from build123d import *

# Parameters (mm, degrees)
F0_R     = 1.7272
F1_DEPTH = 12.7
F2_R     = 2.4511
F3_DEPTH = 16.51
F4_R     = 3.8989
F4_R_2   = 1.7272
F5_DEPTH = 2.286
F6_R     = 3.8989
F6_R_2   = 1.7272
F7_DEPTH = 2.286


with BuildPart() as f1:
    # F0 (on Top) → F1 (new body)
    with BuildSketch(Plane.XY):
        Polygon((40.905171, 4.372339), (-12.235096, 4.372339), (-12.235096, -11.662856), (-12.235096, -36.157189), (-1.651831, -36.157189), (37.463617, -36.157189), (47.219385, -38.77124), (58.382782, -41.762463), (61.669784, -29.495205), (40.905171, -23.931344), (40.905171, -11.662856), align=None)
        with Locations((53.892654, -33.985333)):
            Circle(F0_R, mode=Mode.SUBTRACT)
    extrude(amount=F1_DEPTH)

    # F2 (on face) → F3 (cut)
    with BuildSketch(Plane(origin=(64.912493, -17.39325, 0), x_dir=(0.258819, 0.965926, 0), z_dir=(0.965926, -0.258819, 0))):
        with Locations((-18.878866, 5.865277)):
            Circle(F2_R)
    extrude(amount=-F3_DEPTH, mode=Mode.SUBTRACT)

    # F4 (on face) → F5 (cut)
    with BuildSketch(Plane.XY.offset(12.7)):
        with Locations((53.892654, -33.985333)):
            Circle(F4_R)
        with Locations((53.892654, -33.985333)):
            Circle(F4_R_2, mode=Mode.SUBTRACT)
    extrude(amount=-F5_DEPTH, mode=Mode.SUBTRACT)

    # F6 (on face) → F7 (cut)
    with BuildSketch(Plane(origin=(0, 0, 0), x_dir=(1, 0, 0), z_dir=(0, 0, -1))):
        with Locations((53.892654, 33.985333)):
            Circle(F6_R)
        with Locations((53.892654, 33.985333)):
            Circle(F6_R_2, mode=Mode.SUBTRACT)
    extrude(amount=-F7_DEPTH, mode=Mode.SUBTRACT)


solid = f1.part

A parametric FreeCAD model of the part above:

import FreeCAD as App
import Part
import Sketcher

V = App.Vector
Q = App.Units.Quantity

doc = App.newDocument("Part")
body = doc.addObject("PartDesign::Body", "Body")

# Sketch on XY plane
sketch1 = body.newObject("Sketcher::SketchObject", "Sketch")
sketch1.AttachmentSupport = (doc.getObject("XY_Plane"), [""])
sketch1.MapMode = "FlatFace"
sketch1.addGeometry(Part.LineSegment(V(40.9, 4.4, 0), V(-12.2, 4.4, 0)), False)
sketch1.addGeometry(Part.LineSegment(V(-12.2, 4.4, 0), V(-12.2, -36.2, 0)), False)
sketch1.addGeometry(Part.LineSegment(V(-12.2, -36.2, 0), V(37.5, -36.2, 0)), False)
sketch1.addGeometry(Part.LineSegment(V(37.5, -36.2, 0), V(47.2, -38.8, 0)), False)
sketch1.addGeometry(Part.LineSegment(V(47.2, -38.8, 0), V(58.4, -41.8, 0)), False)
sketch1.addGeometry(Part.LineSegment(V(58.4, -41.8, 0), V(61.7, -29.5, 0)), False)
sketch1.addGeometry(Part.LineSegment(V(61.7, -29.5, 0), V(40.9, -23.9, 0)), False)
sketch1.addGeometry(Part.LineSegment(V(40.9, -23.9, 0), V(40.9, 4.4, 0)), False)
sketch1.addGeometry(Part.Circle(V(53.9, -34, 0), V(0, 0, 1), 1.7), False)
sketch1.addConstraint(Sketcher.Constraint("Coincident", 0, 2, 1, 1))
sketch1.addConstraint(Sketcher.Constraint("Coincident", 1, 2, 2, 1))
sketch1.addConstraint(Sketcher.Constraint("Coincident", 2, 2, 3, 1))
sketch1.addConstraint(Sketcher.Constraint("Coincident", 3, 2, 4, 1))
sketch1.addConstraint(Sketcher.Constraint("Coincident", 4, 2, 5, 1))
sketch1.addConstraint(Sketcher.Constraint("Coincident", 5, 2, 6, 1))
sketch1.addConstraint(Sketcher.Constraint("Coincident", 6, 2, 7, 1))
sketch1.addConstraint(Sketcher.Constraint("Coincident", 7, 2, 0, 1))
sketch1.addConstraint(Sketcher.Constraint("Horizontal", 0))
sketch1.addConstraint(Sketcher.Constraint("Vertical", 1))
sketch1.addConstraint(Sketcher.Constraint("Horizontal", 2))
sketch1.addConstraint(Sketcher.Constraint("Vertical", 7))
sketch1.addConstraint(Sketcher.Constraint("Parallel", 3, 4))
sketch1.addConstraint(Sketcher.Constraint("Perpendicular", 4, 5))
sketch1.addConstraint(Sketcher.Constraint("Perpendicular", 5, 6))
sketch1.addConstraint(Sketcher.Constraint("Diameter", 8, Q("0.136 in")))
sketch1.addConstraint(Sketcher.Constraint("Angle", 3, Q("-15.000005 deg")))
sketch1.addConstraint(Sketcher.Constraint("Distance", 5, Q("0.5 in")))
sketch1.addConstraint(Sketcher.Constraint("Distance", 4, 11.557199))
sketch1.addConstraint(Sketcher.Constraint("DistanceY", 4, 2, 0, 2, 46.134802))
sketch1.addConstraint(Sketcher.Constraint("Distance", 6, 21.497109))
sketch1.addConstraint(Sketcher.Constraint("DistanceX", 0, 2, 0, 1, 53.140267))
sketch1.addConstraint(Sketcher.Constraint("DistanceX", 2, 1, 2, 2, 49.698713))
sketch1.addConstraint(Sketcher.Constraint("DistanceY", -1, 1, 0, 2, 4.372339))
sketch1.addConstraint(Sketcher.Constraint("DistanceX", -1, 1, 6, 2, 40.905171))
sketch1.addConstraint(Sketcher.Constraint("DistanceX", 0, 2, 8, 3, 66.12775))
sketch1.addConstraint(Sketcher.Constraint("DistanceY", 8, 3, 0, 2, 38.357672))
pad1 = body.newObject("PartDesign::Pad", "Pad")
pad1.Profile = sketch1
pad1.Length = Q("0.5 in")

# Sketch on an angled plane
sketch2 = body.newObject("Sketcher::SketchObject", "Sketch001")
sketch2.Placement = App.Placement(V(64.912493, -17.39325, 0), App.Rotation(V(0.25881896, 0.965925849, 0), V(0, 0, 1), V(0.965925849, -0.25881896, 0), "ZXY"))
sketch2.addGeometry(Part.Circle(V(-18.9, 5.9, 0), V(0, 0, 1), 2.5), False)
sketch2.addConstraint(Sketcher.Constraint("Diameter", 0, Q("0.193 in")))
sketch2.addConstraint(Sketcher.Constraint("DistanceX", 0, 3, -1, 1, 18.878866))
sketch2.addConstraint(Sketcher.Constraint("DistanceY", -1, 1, 0, 3, 5.865277))
pocket1 = body.newObject("PartDesign::Pocket", "Pocket")
pocket1.Profile = sketch2
pocket1.Length = Q("0.65 in")

# Sketch on XY plane
sketch3 = body.newObject("Sketcher::SketchObject", "Sketch002")
sketch3.AttachmentSupport = (doc.getObject("XY_Plane"), [""])
sketch3.MapMode = "FlatFace"
sketch3.AttachmentOffset = App.Placement(V(0, 0, 0.5 * 25.4), App.Rotation())
sketch3.addGeometry(Part.Circle(V(53.9, -34, 0), V(0, 0, 1), 3.9), False)
sketch3.addGeometry(Part.Circle(V(53.9, -34, 0), V(0, 0, 1), 1.7), False)
sketch3.addConstraint(Sketcher.Constraint("Coincident", 1, 3, 0, 3))
sketch3.addConstraint(Sketcher.Constraint("Diameter", 0, Q("0.307 in")))
sketch3.addConstraint(Sketcher.Constraint("Diameter", 1, Q("0.136 in")))
sketch3.addConstraint(Sketcher.Constraint("DistanceX", -1, 1, 0, 3, 53.892654))
sketch3.addConstraint(Sketcher.Constraint("DistanceY", 0, 3, -1, 1, 33.985333))
pocket2 = body.newObject("PartDesign::Pocket", "Pocket001")
pocket2.Profile = sketch3
pocket2.Length = Q("0.09 in")

# Sketch on XY plane
sketch4 = body.newObject("Sketcher::SketchObject", "Sketch003")
sketch4.AttachmentSupport = (doc.getObject("XY_Plane"), [""])
sketch4.MapMode = "FlatFace"
sketch4.addGeometry(Part.Circle(V(53.9, -34, 0), V(0, 0, 1), 3.9), False)
sketch4.addGeometry(Part.Circle(V(53.9, -34, 0), V(0, 0, 1), 1.7), False)
sketch4.addConstraint(Sketcher.Constraint("Coincident", 1, 3, 0, 3))
sketch4.addConstraint(Sketcher.Constraint("Diameter", 0, Q("0.307 in")))
sketch4.addConstraint(Sketcher.Constraint("Diameter", 1, Q("0.136 in")))
sketch4.addConstraint(Sketcher.Constraint("DistanceX", -1, 1, 0, 3, 53.892654))
sketch4.addConstraint(Sketcher.Constraint("DistanceY", 0, 3, -1, 1, 33.985333))
pocket3 = body.newObject("PartDesign::Pocket", "Pocket002")
pocket3.Profile = sketch4
pocket3.Length = Q("0.09 in")
pocket3.Reversed = True

doc.recompute()
